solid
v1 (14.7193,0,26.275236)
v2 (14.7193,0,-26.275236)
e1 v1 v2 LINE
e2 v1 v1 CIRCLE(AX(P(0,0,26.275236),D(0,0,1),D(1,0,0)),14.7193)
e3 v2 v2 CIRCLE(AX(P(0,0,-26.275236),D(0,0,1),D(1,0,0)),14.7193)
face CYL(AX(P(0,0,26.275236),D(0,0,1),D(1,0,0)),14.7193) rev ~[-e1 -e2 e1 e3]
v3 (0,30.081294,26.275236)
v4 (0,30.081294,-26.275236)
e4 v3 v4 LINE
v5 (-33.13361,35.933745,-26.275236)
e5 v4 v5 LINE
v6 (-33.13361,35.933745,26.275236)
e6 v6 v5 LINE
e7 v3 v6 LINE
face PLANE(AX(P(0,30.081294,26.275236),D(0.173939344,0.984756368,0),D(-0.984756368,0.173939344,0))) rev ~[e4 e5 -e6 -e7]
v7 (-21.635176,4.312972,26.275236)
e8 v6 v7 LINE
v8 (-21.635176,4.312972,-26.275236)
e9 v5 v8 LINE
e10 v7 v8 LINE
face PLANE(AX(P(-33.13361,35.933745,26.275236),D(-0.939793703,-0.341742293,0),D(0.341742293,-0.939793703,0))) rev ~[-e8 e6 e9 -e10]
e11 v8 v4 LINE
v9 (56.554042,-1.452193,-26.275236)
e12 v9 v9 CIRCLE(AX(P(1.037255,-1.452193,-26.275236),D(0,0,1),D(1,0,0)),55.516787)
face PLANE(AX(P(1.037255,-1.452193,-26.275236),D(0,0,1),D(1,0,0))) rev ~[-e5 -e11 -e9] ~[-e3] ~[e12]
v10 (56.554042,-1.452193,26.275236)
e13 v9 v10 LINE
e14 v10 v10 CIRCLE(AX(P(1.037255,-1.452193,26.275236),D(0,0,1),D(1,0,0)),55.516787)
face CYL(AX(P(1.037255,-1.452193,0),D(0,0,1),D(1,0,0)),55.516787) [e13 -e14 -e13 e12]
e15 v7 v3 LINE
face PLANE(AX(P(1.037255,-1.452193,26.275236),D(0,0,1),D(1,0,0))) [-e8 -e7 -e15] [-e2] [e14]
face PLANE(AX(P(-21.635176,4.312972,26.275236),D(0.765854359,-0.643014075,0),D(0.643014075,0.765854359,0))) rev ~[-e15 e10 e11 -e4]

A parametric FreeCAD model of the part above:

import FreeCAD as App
import Part
import Sketcher
Q = App.Units.Quantity


def add_polygon(sketch, points):
    """Adds a closed chain of lines whose ends are joined by coincident constraints."""
    first, n = sketch.GeometryCount, len(points)
    for a, b in zip(points, points[1:] + points[:1]):
        sketch.addGeometry(Part.LineSegment(App.Vector(*a, 0), App.Vector(*b, 0)), False)
    for i in range(n):
        sketch.addConstraint(Sketcher.Constraint("Coincident", first + i, 2, first + (i + 1) % n, 1))

doc = App.newDocument("Part")
params = doc.addObject("Spreadsheet::Sheet", "Params")
for row, (alias, value) in enumerate([
    ("pad1_length", "52.550472 mm"),
    ("pocket1_length", "74.127078 mm"),
    ("sketch3_diameter", "1.159 in"),
    ("pocket2_length", "121.840715 mm"),
], start=1):
    params.set(f"A{row}", alias)
    params.set(f"B{row}", "=" + value)
    params.setAlias(f"B{row}", alias)

body = doc.addObject("PartDesign::Body", "Body")

# Sketch on XY plane
sketch1 = body.newObject("Sketcher::SketchObject", "Sketch")
sketch1.AttachmentSupport = (doc.getObject("XY_Plane"), [""])
sketch1.MapMode = "FlatFace"
sketch1.addGeometry(Part.Circle(App.Vector(1, -1, 0), App.Vector(0, 0, 1), 56), False)
sketch1.addConstraint([
    Sketcher.Constraint("Diameter", 0, Q("111.033573 mm")),
    Sketcher.Constraint("DistanceX", -1, 1, 0, 3, Q("1.037255 mm")),
    Sketcher.Constraint("DistanceY", 0, 3, -1, 1, Q("1.452193 mm")),
])
pad1 = body.newObject("PartDesign::Pad", "Pad")
pad1.Profile = sketch1
pad1.setExpression("Length", "Params.pad1_length")
pad1.Midplane = True

# Sketch on XY plane
sketch2 = body.newObject("Sketcher::SketchObject", "Sketch001")
sketch2.AttachmentSupport = (doc.getObject("XY_Plane"), [""])
sketch2.MapMode = "FlatFace"
sketch2.AttachmentOffset = App.Placement(App.Vector(0, 0, 26.275236), App.Rotation())
add_polygon(sketch2, [(-22, 4), (0, 30), (-33, 36)])  # lines 0-2
sketch2.addConstraint([
    Sketcher.Constraint("PointOnObject", 0, 2, -2),
    Sketcher.Constraint("Equal", 0, 1),
    Sketcher.Constraint("Equal", 1, 2),
    Sketcher.Constraint("DistanceX", 1, 2, -1, 1, Q("33.13361 mm")),
    Sketcher.Constraint("DistanceY", 0, 2, 1, 2, Q("5.852451 mm")),
    Sketcher.Constraint("DistanceY", -1, 1, 0, 2, Q("30.081294 mm")),
])
pocket1 = body.newObject("PartDesign::Pocket", "Pocket")
pocket1.Profile = sketch2
pocket1.setExpression("Length", "Params.pocket1_length")

# Sketch on XY plane
sketch3 = body.newObject("Sketcher::SketchObject", "Sketch002")
sketch3.AttachmentSupport = (doc.getObject("XY_Plane"), [""])
sketch3.MapMode = "FlatFace"
sketch3.AttachmentOffset = App.Placement(App.Vector(0, 0, 26.275236), App.Rotation())
sketch3.addGeometry(Part.Circle(App.Vector(0, 0, 0), App.Vector(0, 0, 1), 15), False)
sketch3.addConstraint([
    Sketcher.Constraint("Coincident", 0, 3, -1, 1),
    Sketcher.Constraint("Diameter", 0, Q("1.159 in")),
])
sketch3.setExpression("Constraints[1]", "Params.sketch3_diameter")
pocket2 = body.newObject("PartDesign::Pocket", "Pocket001")
pocket2.Profile = sketch3
pocket2.setExpression("Length", "Params.pocket2_length")

doc.recompute()
